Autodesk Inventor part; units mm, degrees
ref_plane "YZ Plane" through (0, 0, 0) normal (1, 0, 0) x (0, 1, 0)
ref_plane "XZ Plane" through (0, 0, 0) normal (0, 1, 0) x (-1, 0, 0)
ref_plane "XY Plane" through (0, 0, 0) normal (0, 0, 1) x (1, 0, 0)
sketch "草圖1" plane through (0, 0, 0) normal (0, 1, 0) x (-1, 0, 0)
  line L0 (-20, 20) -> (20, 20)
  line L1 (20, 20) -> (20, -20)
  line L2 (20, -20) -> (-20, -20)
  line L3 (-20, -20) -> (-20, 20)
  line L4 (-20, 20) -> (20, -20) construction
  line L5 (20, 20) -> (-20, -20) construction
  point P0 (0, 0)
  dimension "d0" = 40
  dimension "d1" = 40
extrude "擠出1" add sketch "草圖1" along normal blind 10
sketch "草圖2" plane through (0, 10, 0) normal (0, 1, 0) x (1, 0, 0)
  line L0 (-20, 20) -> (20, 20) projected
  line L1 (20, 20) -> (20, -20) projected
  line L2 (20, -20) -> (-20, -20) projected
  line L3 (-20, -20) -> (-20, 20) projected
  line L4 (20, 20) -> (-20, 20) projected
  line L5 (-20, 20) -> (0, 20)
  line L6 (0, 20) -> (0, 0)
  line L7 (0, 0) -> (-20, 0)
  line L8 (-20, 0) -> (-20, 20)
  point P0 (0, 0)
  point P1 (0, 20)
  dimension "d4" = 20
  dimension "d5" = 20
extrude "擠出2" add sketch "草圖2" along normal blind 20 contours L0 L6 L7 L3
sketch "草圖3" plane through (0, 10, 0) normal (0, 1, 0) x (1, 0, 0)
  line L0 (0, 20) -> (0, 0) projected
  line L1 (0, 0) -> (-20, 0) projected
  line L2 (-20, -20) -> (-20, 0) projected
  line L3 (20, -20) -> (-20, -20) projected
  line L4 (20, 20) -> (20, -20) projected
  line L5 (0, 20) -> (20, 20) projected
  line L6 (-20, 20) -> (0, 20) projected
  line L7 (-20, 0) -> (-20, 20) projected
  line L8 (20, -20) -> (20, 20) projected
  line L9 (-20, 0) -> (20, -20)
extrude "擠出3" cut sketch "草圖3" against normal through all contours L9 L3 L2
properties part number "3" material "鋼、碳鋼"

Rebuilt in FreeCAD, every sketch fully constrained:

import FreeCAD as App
import Part
import Sketcher


def add_polygon(sketch, points):
    """Adds a closed chain of lines whose ends are joined by coincident constraints."""
    first, n = sketch.GeometryCount, len(points)
    for a, b in zip(points, points[1:] + points[:1]):
        sketch.addGeometry(Part.LineSegment(App.Vector(*a, 0), App.Vector(*b, 0)), False)
    for i in range(n):
        sketch.addConstraint(Sketcher.Constraint("Coincident", first + i, 2, first + (i + 1) % n, 1))

doc = App.newDocument("Part")
body = doc.addObject("PartDesign::Body", "Body")

sketch1 = body.newObject("Sketcher::SketchObject", "Sketch")
sketch1.AttachmentSupport = (doc.getObject("XZ_Plane"), [""])
sketch1.MapMode = "FlatFace"
add_polygon(sketch1, [(-20, 20), (20, 20), (20, -20), (-20, -20)])
sketch1.addConstraint([
    Sketcher.Constraint("Horizontal", 0),
    Sketcher.Constraint("Vertical", 1),
    Sketcher.Constraint("Horizontal", 2),
    Sketcher.Constraint("Vertical", 3),
    Sketcher.Constraint("Symmetric", 0, 2, 2, 2, -1, 1),
    Sketcher.Constraint("Equal", 2, 1),
    Sketcher.Constraint("DistanceX", 0, 1, 0, 2, 40.0),
])
pad1 = body.newObject("PartDesign::Pad", "Pad")
pad1.Profile = sketch1
pad1.Length = 10
pad1.Reversed = True

sketch2 = body.newObject("Sketcher::SketchObject", "Sketch001")
sketch2.AttachmentSupport = (doc.getObject("XZ_Plane"), [""])
sketch2.MapMode = "FlatFace"
sketch2.AttachmentOffset = App.Placement(App.Vector(0, 0, -10), App.Rotation())
add_polygon(sketch2, [(0, -20), (-20, -20), (-20, 0), (0, 0)])
sketch2.addConstraint([
    Sketcher.Constraint("Horizontal", 0),
    Sketcher.Constraint("Vertical", 1),
    Sketcher.Constraint("Horizontal", 2),
    Sketcher.Constraint("Vertical", 3),
    Sketcher.Constraint("Coincident", 2, 2, -1, 1),
    Sketcher.Constraint("Equal", 2, 1),
    Sketcher.Constraint("DistanceX", 0, 2, 0, 1, 20.0),
])
pad2 = body.newObject("PartDesign::Pad", "Pad001")
pad2.Profile = sketch2
pad2.Length = 20
pad2.Reversed = True

sketch3 = body.newObject("Sketcher::SketchObject", "Sketch002")
sketch3.AttachmentSupport = (doc.getObject("XZ_Plane"), [""])
sketch3.MapMode = "FlatFace"
sketch3.AttachmentOffset = App.Placement(App.Vector(0, 0, -10), App.Rotation())
add_polygon(sketch3, [(20, 20), (-20, 0), (-20, 20)])
sketch3.addConstraint([
    Sketcher.Constraint("Vertical", 1),
    Sketcher.Constraint("Horizontal", 2),
    Sketcher.Constraint("PointOnObject", 0, 2, -1),
    Sketcher.Constraint("DistanceX", 2, 1, 2, 2, 40.0),
    Sketcher.Constraint("DistanceY", 1, 1, 1, 2, 20.0),
    Sketcher.Constraint("DistanceX", 0, 2, -1, 1, 20.0),
])
pocket1 = body.newObject("PartDesign::Pocket", "Pocket")
pocket1.Profile = sketch3
pocket1.Type = "ThroughAll"
pocket1.Reversed = True

doc.recompute()
